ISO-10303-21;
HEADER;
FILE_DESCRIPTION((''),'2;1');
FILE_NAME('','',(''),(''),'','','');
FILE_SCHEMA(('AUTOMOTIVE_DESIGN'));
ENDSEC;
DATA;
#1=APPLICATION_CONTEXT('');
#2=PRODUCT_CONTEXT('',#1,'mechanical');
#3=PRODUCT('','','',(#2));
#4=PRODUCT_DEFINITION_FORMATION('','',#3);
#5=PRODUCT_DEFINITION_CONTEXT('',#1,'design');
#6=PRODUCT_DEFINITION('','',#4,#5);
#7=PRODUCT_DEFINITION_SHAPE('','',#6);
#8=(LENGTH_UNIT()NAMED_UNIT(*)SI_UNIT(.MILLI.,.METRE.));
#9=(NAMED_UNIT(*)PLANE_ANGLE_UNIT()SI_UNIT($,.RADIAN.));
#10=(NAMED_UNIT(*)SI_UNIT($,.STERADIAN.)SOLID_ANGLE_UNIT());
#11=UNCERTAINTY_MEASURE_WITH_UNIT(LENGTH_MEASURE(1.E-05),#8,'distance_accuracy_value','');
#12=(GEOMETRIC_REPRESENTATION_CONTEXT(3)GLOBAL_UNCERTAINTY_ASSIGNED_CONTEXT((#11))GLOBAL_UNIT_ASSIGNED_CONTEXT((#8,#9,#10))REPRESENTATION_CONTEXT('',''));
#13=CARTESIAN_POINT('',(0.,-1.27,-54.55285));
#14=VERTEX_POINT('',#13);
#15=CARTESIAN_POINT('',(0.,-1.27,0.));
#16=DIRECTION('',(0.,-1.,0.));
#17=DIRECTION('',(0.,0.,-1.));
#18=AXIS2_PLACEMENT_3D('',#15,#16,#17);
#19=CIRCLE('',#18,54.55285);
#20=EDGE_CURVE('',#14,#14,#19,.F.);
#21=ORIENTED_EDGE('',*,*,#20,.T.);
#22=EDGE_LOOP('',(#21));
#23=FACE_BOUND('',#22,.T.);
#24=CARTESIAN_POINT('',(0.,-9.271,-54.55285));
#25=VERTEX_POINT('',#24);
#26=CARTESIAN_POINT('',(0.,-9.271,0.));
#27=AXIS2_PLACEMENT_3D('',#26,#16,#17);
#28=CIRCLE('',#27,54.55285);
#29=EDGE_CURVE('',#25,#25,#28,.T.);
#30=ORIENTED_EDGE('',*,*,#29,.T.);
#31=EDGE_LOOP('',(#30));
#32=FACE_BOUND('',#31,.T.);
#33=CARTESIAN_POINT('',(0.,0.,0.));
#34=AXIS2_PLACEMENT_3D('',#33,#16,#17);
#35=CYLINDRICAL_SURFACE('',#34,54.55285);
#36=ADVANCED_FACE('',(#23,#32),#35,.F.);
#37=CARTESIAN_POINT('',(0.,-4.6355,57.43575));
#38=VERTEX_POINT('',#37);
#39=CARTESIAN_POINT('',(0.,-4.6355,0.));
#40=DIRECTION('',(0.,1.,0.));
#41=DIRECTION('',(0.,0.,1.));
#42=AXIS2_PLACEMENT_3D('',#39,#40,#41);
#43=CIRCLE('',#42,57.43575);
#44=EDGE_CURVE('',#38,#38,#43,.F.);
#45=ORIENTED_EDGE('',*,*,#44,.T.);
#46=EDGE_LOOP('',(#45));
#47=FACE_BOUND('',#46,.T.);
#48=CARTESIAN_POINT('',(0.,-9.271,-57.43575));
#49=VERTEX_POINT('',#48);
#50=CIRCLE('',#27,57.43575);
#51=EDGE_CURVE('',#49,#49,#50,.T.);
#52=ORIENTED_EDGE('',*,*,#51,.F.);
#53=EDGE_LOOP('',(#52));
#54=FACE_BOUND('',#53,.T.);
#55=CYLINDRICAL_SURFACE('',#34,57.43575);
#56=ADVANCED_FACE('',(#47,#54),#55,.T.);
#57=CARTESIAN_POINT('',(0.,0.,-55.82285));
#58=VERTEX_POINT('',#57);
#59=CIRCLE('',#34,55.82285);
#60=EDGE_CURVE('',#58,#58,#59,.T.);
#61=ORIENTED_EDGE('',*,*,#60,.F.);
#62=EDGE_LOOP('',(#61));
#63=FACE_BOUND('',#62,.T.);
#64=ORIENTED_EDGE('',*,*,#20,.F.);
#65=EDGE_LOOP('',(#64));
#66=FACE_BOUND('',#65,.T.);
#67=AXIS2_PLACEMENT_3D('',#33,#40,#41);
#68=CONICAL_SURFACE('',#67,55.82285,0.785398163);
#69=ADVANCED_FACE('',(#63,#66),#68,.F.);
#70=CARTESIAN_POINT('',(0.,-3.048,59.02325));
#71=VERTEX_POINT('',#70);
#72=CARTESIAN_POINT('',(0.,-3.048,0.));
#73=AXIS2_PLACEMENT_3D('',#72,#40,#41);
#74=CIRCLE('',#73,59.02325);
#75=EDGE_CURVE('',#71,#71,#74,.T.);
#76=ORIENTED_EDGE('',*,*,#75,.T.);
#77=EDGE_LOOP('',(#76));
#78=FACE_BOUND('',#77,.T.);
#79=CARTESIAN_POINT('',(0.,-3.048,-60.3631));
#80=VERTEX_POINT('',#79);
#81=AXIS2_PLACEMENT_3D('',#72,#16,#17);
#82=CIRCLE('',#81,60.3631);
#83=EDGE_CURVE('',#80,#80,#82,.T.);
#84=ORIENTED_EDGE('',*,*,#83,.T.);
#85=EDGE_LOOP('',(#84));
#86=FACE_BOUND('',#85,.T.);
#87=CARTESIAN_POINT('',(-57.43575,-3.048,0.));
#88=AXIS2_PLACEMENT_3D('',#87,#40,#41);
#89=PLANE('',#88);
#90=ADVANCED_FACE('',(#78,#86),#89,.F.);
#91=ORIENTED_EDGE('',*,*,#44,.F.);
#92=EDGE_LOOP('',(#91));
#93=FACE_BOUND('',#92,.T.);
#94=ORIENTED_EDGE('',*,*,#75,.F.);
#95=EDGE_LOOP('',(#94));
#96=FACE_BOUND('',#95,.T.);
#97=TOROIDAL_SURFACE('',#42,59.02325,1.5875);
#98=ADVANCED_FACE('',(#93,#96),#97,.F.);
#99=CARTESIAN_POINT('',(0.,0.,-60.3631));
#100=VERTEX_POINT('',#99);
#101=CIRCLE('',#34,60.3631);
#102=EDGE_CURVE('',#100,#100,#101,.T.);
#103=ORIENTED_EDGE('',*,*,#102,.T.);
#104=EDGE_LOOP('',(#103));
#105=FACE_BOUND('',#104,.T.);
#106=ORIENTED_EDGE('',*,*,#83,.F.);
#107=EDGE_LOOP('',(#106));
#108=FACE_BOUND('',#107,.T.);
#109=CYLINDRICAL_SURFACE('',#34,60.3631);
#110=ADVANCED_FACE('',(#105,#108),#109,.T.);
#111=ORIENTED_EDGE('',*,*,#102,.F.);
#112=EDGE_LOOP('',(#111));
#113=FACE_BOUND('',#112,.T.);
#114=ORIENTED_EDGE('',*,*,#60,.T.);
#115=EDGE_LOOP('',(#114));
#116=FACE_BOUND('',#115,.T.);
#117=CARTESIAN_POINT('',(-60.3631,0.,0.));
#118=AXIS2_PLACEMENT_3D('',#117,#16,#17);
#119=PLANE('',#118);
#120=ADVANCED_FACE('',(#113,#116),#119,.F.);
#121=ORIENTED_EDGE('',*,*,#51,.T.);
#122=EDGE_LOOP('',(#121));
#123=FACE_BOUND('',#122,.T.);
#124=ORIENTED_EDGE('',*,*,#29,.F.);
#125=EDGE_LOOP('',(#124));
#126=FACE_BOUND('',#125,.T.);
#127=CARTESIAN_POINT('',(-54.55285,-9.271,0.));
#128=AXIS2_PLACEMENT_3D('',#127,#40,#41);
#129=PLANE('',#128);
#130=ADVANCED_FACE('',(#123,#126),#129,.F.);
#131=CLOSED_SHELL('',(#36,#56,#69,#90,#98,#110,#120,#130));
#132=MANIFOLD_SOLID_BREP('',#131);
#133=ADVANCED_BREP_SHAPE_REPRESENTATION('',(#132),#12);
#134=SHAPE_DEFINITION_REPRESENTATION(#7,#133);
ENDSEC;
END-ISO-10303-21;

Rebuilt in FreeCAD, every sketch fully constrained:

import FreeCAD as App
import Part
import Sketcher
Q = App.Units.Quantity


def edges_at(feature, points):
    """Names of the edges that pass closest to the given points."""
    edges = feature.Shape.Edges
    near = lambda p: min(range(len(edges)), key=lambda i: edges[i].distToShape(Part.Vertex(*p))[0])
    return sorted({f"Edge{near(p) + 1}" for p in points})


def add_polygon(sketch, points):
    """Adds a closed chain of lines whose ends are joined by coincident constraints."""
    first, n = sketch.GeometryCount, len(points)
    for a, b in zip(points, points[1:] + points[:1]):
        sketch.addGeometry(Part.LineSegment(App.Vector(*a, 0), App.Vector(*b, 0)), False)
    for i in range(n):
        sketch.addConstraint(Sketcher.Constraint("Coincident", first + i, 2, first + (i + 1) % n, 1))

doc = App.newDocument("Part")
body = doc.addObject("PartDesign::Body", "Body")

sketch1 = body.newObject("Sketcher::SketchObject", "Sketch")
sketch1.AttachmentSupport = (doc.getObject("XY_Plane"), [""])
sketch1.MapMode = "FlatFace"
add_polygon(sketch1, [(-54.6, -9.3), (-54.6, 0), (-60.4, 0), (-60.4, -3), (-57.4, -3), (-57.4, -9.3)])
sketch1.addConstraint([
    Sketcher.Constraint("Vertical", 0),
    Sketcher.Constraint("Horizontal", 1),
    Sketcher.Constraint("Vertical", 2),
    Sketcher.Constraint("Horizontal", 3),
    Sketcher.Constraint("Vertical", 4),
    Sketcher.Constraint("Horizontal", 5),
    Sketcher.Constraint("PointOnObject", 0, 2, -1),
    Sketcher.Constraint("DistanceY", 2, 2, 2, 1, Q("0.12 in")),
    Sketcher.Constraint("DistanceY", 0, 1, 0, 2, Q("0.365 in")),
    Sketcher.Constraint("DistanceX", 5, 1, 5, 2, Q("0.1135 in")),
    Sketcher.Constraint("DistanceX", 1, 2, -1, 1, Q("2.3765 in")),
    Sketcher.Constraint("DistanceX", 1, 2, 1, 1, 5.81025),
])
revolution = body.newObject("PartDesign::Revolution", "Revolution")
revolution.Profile = sketch1
revolution.ReferenceAxis = (sketch1, ["V_Axis"])
revolution.Angle = 360
doc.recompute()

chamfer = body.newObject("PartDesign::Chamfer", "Chamfer")
chamfer.Base = (revolution, edges_at(revolution, [(0, 0, 54.553)]))
chamfer.Size = Q("0.05 in")
doc.recompute()

fillet = body.newObject("PartDesign::Fillet", "Fillet")
fillet.Base = (chamfer, edges_at(chamfer, [(0, -3.048, 57.436)]))
fillet.Radius = Q("0.0625 in")

doc.recompute()
